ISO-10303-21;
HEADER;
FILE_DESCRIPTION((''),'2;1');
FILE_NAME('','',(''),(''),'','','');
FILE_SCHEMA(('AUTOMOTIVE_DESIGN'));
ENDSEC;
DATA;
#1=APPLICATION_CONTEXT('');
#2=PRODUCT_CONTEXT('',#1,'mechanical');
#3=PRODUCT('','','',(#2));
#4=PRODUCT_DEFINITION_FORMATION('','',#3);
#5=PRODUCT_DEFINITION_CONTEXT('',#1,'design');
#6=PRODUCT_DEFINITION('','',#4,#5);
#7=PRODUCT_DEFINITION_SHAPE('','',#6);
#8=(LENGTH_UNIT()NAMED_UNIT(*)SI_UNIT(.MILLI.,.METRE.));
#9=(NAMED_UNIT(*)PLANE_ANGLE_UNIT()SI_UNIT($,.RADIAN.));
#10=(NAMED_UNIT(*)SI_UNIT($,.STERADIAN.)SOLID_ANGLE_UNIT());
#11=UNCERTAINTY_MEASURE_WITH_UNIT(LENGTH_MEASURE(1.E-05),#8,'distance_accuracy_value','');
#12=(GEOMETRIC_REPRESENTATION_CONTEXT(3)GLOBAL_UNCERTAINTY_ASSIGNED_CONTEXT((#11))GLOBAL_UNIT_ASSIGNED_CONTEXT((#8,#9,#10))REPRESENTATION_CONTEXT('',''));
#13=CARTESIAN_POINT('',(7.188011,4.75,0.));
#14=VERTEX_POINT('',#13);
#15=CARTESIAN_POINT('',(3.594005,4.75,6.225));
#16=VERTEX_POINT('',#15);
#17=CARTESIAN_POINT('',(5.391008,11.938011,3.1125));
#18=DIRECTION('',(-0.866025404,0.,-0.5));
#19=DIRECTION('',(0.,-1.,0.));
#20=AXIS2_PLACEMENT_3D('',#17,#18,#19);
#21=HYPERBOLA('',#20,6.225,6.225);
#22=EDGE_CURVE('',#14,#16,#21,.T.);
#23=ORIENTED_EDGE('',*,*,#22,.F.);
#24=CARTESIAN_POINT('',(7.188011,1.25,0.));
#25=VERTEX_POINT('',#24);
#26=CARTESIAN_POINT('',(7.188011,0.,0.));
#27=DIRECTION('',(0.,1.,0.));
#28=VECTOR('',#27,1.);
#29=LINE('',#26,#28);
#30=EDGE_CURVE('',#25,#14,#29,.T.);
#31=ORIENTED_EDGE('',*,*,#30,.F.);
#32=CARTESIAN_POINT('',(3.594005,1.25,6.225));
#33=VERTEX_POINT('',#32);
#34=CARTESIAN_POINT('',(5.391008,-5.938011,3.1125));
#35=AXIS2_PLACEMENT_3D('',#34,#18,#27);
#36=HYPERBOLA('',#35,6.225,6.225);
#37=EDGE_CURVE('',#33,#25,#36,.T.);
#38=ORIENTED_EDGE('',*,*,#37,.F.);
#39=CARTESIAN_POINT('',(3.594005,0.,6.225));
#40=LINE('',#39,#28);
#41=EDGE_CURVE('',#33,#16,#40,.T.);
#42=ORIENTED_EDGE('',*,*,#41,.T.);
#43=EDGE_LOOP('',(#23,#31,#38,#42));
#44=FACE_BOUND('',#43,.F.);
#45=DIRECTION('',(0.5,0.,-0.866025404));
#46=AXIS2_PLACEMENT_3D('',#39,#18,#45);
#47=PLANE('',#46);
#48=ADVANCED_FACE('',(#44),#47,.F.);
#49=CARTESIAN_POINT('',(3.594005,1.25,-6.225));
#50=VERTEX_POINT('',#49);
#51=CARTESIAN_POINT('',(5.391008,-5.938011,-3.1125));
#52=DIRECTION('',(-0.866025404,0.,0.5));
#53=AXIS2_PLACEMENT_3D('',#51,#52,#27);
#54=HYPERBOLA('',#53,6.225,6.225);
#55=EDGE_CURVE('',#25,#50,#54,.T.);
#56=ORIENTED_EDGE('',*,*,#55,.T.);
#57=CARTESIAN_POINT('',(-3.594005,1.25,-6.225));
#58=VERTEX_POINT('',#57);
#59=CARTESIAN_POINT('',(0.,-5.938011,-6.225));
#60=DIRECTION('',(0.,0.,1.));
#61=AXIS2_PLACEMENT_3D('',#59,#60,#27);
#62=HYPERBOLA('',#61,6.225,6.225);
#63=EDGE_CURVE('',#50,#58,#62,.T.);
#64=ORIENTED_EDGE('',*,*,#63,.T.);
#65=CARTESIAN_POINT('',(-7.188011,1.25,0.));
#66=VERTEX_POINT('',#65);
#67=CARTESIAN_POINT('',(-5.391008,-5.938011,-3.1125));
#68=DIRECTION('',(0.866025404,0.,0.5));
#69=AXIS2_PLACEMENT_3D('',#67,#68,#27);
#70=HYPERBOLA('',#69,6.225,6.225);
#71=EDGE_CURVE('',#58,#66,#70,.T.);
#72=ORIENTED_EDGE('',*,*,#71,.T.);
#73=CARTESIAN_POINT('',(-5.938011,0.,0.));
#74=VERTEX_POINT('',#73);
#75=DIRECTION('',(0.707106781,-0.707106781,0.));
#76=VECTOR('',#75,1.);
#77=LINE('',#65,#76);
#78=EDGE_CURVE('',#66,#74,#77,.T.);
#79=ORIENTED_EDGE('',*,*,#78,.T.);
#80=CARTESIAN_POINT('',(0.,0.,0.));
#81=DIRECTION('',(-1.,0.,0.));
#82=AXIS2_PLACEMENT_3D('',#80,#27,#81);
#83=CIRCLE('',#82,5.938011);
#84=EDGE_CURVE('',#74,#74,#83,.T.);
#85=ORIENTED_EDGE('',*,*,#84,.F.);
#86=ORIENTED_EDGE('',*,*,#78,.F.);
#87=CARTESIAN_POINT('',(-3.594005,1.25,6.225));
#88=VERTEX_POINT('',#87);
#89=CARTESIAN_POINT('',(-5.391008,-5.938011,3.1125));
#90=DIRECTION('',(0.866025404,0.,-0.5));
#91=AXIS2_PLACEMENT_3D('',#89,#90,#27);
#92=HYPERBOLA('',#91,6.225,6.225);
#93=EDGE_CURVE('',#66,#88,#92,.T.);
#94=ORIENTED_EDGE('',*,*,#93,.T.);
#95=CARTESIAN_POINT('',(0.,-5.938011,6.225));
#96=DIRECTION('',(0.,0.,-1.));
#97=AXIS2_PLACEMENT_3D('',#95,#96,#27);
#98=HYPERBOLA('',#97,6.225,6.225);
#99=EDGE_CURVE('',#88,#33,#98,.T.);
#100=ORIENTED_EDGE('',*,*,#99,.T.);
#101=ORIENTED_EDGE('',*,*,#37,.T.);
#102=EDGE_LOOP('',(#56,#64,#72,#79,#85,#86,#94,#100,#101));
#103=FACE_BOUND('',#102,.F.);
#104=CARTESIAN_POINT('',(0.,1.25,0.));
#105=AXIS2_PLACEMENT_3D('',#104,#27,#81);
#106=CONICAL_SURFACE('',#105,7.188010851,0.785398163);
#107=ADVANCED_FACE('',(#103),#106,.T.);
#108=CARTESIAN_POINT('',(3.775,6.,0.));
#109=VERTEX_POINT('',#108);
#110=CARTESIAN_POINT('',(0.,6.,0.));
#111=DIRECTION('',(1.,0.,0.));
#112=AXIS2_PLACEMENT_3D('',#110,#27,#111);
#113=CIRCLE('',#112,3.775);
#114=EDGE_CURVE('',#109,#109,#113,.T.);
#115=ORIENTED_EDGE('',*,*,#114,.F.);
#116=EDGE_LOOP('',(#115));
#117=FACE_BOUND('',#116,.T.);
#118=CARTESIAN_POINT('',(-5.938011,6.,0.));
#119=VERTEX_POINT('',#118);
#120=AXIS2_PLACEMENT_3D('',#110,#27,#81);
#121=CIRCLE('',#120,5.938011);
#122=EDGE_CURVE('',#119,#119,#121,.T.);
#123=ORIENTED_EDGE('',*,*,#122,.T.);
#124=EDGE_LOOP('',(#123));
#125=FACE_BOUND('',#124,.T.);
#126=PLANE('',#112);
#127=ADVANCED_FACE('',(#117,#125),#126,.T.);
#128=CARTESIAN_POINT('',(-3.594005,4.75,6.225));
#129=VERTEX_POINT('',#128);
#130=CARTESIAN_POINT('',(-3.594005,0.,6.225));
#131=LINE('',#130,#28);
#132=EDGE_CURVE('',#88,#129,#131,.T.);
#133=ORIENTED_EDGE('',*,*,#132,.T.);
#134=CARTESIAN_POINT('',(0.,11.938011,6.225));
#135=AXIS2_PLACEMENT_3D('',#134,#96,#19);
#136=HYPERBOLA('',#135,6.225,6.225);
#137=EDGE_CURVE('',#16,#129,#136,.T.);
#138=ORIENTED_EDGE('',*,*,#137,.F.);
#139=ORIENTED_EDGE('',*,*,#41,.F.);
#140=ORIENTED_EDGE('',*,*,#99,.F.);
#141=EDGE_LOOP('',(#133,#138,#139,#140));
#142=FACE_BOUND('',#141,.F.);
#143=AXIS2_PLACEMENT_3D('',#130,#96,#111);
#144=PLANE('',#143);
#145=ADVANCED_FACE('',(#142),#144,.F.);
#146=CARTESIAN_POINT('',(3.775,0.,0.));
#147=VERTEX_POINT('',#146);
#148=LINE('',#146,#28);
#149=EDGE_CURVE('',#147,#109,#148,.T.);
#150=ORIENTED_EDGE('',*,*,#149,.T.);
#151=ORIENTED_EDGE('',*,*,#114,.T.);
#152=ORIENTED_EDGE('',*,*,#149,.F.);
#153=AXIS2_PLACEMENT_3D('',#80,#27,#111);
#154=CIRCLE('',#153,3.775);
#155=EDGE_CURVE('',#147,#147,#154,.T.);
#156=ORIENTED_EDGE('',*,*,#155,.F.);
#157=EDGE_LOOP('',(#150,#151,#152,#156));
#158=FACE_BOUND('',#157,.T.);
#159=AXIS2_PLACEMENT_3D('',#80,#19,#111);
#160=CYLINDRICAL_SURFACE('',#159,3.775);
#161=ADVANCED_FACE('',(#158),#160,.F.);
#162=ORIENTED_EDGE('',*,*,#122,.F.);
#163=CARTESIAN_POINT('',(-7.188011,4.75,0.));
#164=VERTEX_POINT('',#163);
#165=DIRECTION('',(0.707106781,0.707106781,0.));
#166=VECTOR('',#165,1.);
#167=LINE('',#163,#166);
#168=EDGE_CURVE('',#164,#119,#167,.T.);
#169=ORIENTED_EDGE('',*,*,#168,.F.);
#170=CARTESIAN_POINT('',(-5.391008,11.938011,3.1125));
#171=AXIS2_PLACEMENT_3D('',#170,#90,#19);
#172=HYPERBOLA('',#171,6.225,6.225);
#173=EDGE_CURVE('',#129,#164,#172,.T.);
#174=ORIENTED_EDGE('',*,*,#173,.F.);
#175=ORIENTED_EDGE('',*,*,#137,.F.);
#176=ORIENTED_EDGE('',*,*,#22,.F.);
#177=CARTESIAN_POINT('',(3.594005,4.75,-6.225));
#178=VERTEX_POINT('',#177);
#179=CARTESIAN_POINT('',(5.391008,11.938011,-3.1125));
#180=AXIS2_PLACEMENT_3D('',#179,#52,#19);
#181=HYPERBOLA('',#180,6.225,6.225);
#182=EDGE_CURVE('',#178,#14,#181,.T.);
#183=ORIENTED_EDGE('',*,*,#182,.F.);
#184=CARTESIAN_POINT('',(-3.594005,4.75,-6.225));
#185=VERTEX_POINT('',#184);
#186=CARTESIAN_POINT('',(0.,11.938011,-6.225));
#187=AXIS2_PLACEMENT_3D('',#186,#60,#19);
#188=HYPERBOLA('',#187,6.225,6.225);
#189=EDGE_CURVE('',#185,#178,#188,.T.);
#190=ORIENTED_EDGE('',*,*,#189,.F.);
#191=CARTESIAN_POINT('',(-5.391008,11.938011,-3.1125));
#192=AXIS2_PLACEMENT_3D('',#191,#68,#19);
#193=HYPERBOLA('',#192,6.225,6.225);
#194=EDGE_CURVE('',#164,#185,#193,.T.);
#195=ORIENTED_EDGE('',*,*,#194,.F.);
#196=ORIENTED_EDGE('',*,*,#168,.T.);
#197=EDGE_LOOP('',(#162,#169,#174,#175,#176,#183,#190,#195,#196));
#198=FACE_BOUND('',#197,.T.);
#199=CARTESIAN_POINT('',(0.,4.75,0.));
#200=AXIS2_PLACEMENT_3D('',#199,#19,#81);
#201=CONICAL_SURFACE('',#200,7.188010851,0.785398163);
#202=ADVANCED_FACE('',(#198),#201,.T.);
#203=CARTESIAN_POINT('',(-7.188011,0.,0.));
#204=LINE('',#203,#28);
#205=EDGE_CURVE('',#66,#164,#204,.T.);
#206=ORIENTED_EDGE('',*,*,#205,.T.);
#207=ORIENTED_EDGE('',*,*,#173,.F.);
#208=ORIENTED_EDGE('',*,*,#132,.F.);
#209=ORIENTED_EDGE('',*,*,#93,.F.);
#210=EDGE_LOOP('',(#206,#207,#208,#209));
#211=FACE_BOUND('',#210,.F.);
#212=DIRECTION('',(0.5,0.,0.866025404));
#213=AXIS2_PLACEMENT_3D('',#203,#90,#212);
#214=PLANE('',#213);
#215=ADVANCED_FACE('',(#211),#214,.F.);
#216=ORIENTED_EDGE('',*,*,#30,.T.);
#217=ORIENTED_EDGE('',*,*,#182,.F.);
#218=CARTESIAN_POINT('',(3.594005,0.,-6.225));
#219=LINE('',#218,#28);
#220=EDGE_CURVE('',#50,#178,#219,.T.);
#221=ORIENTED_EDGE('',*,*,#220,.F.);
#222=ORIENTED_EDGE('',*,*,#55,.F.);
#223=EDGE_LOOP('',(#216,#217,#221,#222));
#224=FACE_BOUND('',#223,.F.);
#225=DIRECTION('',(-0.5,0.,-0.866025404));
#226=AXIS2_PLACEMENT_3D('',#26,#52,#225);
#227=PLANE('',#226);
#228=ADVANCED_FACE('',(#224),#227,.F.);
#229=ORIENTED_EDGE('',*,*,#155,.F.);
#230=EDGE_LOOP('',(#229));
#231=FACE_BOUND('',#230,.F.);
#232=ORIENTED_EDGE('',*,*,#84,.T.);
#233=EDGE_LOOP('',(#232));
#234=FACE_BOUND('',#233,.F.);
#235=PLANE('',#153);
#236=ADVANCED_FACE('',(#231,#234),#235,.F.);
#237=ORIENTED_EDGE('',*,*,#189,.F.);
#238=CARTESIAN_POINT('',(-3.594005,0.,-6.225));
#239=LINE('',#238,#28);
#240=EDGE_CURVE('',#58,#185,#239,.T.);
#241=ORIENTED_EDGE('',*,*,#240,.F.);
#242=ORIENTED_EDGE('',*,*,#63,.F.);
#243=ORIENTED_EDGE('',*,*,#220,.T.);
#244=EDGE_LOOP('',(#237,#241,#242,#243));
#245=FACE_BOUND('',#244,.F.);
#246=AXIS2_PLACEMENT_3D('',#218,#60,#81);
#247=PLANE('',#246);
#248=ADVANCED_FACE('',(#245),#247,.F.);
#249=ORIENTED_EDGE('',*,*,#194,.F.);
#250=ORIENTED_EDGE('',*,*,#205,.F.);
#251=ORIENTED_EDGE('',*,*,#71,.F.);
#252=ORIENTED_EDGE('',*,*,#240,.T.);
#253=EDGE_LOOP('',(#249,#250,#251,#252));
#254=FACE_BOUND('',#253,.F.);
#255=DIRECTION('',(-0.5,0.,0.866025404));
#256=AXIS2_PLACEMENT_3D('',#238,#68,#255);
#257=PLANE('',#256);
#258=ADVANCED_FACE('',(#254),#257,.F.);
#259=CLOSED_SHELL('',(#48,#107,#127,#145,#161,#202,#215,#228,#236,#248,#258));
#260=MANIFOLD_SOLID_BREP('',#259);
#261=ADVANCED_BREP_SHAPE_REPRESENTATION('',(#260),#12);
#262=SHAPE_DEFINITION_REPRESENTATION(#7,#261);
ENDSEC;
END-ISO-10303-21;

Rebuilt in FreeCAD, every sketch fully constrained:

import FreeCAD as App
import Part
import Sketcher
Q = App.Units.Quantity

doc = App.newDocument("Part")
params = doc.addObject("Spreadsheet::Sheet", "Params")
for row, (alias, value) in enumerate([
    ("sketch1_diameter", "7.55 mm"),
    ("pad1_length", "6 mm"),
    ("sketch2_width", "1.25 mm"),
    ("groove_angle", "360 deg"),
], start=1):
    params.set(f"A{row}", alias)
    params.set(f"B{row}", "=" + value)
    params.setAlias(f"B{row}", alias)

body = doc.addObject("PartDesign::Body", "Body")

# Sketch on XZ plane
sketch1 = doc.addObject("Sketcher::SketchObject", "Sketch")
body.addObject(sketch1)
sketch1.AttachmentSupport = (doc.XZ_Plane, [""])
sketch1.MapMode = "FlatFace"
sketch1.addGeometry([
    Part.LineSegment(App.Vector(-7.2, 0, 0), App.Vector(-3.6, 6.2, 0)),  # 0
    Part.LineSegment(App.Vector(-3.6, 6.2, 0), App.Vector(3.6, 6.2, 0)),  # 1
    Part.LineSegment(App.Vector(3.6, 6.2, 0), App.Vector(7.2, 0, 0)),  # 2
    Part.LineSegment(App.Vector(7.2, 0, 0), App.Vector(3.6, -6.2, 0)),  # 3
    Part.LineSegment(App.Vector(3.6, -6.2, 0), App.Vector(-3.6, -6.2, 0)),  # 4
    Part.LineSegment(App.Vector(-3.6, -6.2, 0), App.Vector(-7.2, 0, 0)),  # 5
    Part.Circle(App.Vector(0, 0, 0), App.Vector(0, 0, 1), 3.8),  # 6
], False)
sketch1.addConstraint([
    Sketcher.Constraint("Coincident", 0, 2, 1, 1),
    Sketcher.Constraint("Coincident", 1, 2, 2, 1),
    Sketcher.Constraint("Coincident", 2, 2, 3, 1),
    Sketcher.Constraint("Coincident", 3, 2, 4, 1),
    Sketcher.Constraint("Coincident", 4, 2, 5, 1),
    Sketcher.Constraint("Coincident", 5, 2, 0, 1),
    Sketcher.Constraint("Horizontal", 1),
    Sketcher.Constraint("Horizontal", 4),
    Sketcher.Constraint("Coincident", 6, 3, -1, 1),
    Sketcher.Constraint("Symmetric", 0, 2, 3, 2, -1, 1),
    Sketcher.Constraint("Symmetric", 2, 2, 5, 2, -1, 1),
    Sketcher.Constraint("PointOnObject", 2, 2, -1),
    Sketcher.Constraint("Parallel", 2, 5),
    Sketcher.Constraint("Vertical", 1, 2, 3, 2),
    Sketcher.Constraint("Diameter", 6, 7.55),
    Sketcher.Constraint("Angle", 0, Q("60 deg")),
    Sketcher.Constraint("DistanceY", 3, 2, 1, 2, 12.45),
    Sketcher.Constraint("DistanceX", 1, 1, 1, 2, 7.188011),
])
sketch1.setExpression("Constraints[14]", "Params.sketch1_diameter")
pad1 = doc.addObject("PartDesign::Pad", "Pad")
body.addObject(pad1)
pad1.Profile = sketch1
pad1.setExpression("Length", "Params.pad1_length")
pad1.Reversed = True

# Sketch on XY plane
sketch2 = doc.addObject("Sketcher::SketchObject", "Sketch001")
body.addObject(sketch2)
sketch2.AttachmentSupport = (doc.XY_Plane, [""])
sketch2.MapMode = "FlatFace"
sketch2.addGeometry([
    Part.LineSegment(App.Vector(-5.9, 6, 0), App.Vector(-7.2, 6, 0)),  # 0
    Part.LineSegment(App.Vector(-7.2, 6, 0), App.Vector(-7.2, 4.8, 0)),  # 1
    Part.LineSegment(App.Vector(-7.2, 4.8, 0), App.Vector(-5.9, 6, 0)),  # 2
    Part.LineSegment(App.Vector(-7.2, 0, 0), App.Vector(-5.9, 0, 0)),  # 3
    Part.LineSegment(App.Vector(-5.9, 0, 0), App.Vector(-7.2, 1.2, 0)),  # 4
    Part.LineSegment(App.Vector(-7.2, 1.2, 0), App.Vector(-7.2, 0, 0)),  # 5
], False)
sketch2.addConstraint([
    Sketcher.Constraint("Coincident", 0, 2, 1, 1),
    Sketcher.Constraint("Coincident", 1, 2, 2, 1),
    Sketcher.Constraint("Coincident", 2, 2, 0, 1),
    Sketcher.Constraint("Coincident", 3, 2, 4, 1),
    Sketcher.Constraint("Coincident", 4, 2, 5, 1),
    Sketcher.Constraint("Coincident", 5, 2, 3, 1),
    Sketcher.Constraint("Horizontal", 0),
    Sketcher.Constraint("Vertical", 1),
    Sketcher.Constraint("Horizontal", 3),
    Sketcher.Constraint("Vertical", 5),
    Sketcher.Constraint("PointOnObject", 3, 2, -1),
    Sketcher.Constraint("Perpendicular", 2, 4),
    Sketcher.Constraint("Vertical", 2, 2, 3, 2),
    Sketcher.Constraint("Vertical", 1, 2, 4, 2),
    Sketcher.Constraint("Equal", 3, 1),
    Sketcher.Constraint("DistanceY", -1, 1, 0, 2, 6.0),
    Sketcher.Constraint("DistanceX", 0, 2, 0, 1, 1.25),
    Sketcher.Constraint("DistanceX", 0, 2, -1, 1, 7.188011),
])
sketch2.setExpression("Constraints[16]", "Params.sketch2_width")
groove = doc.addObject("PartDesign::Groove", "Groove")
body.addObject(groove)
groove.Profile = sketch2
groove.ReferenceAxis = (sketch2, ["V_Axis"])
groove.setExpression("Angle", "Params.groove_angle")

doc.recompute()
